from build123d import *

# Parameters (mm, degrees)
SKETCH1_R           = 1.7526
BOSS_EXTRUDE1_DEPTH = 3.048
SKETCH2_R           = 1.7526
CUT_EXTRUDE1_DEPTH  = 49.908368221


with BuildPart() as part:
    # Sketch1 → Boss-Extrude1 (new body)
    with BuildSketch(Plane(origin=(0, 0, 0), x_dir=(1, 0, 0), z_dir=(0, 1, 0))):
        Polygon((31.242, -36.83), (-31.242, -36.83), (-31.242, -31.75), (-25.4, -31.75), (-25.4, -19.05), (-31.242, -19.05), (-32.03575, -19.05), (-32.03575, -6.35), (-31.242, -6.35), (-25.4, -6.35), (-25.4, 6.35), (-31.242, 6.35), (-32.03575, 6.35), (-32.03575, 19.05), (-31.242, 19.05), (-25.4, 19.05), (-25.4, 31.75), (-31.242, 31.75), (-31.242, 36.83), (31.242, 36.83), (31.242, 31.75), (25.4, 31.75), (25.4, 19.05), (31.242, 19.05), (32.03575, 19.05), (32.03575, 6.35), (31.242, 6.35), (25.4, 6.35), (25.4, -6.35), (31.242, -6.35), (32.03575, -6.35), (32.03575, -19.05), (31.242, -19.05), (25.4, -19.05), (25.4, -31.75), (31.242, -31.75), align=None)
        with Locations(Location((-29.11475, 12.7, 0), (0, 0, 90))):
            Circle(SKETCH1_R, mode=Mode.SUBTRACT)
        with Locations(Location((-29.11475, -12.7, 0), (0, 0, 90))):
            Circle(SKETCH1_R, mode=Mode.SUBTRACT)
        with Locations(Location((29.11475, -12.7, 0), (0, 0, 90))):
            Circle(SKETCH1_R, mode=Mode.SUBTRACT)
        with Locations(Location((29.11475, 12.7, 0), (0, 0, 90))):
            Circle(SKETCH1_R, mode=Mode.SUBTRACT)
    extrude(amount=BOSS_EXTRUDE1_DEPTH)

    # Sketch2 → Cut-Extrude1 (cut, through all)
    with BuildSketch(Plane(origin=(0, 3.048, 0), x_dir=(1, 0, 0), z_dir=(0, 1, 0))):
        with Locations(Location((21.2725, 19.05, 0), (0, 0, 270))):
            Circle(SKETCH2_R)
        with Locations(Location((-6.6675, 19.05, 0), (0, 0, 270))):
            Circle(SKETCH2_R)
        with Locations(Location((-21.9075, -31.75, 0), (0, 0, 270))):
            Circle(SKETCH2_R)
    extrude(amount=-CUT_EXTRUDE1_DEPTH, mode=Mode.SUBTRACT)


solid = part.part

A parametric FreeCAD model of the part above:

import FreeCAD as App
import Part
import Sketcher
from FreeCAD import Vector
Q = App.Units.Quantity


def add_polygon(sketch, points):
    """Adds a closed chain of lines whose ends are joined by coincident constraints."""
    first, n = sketch.GeometryCount, len(points)
    for a, b in zip(points, points[1:] + points[:1]):
        sketch.addGeometry(Part.LineSegment(App.Vector(*a, 0), App.Vector(*b, 0)), False)
    for i in range(n):
        sketch.addConstraint(Sketcher.Constraint("Coincident", first + i, 2, first + (i + 1) % n, 1))

doc = App.newDocument("Part")
params = doc.addObject("Spreadsheet::Sheet", "Params")
for row, (alias, value) in enumerate([
    ("sketch1_diameter", "0.138 in"),
    ("sketch1_height", "0.2 in"),
    ("sketch1_height2", "0.5 in"),
    ("sketch1_width", "2.46 in"),
    ("pad1_length", "0.12 in"),
    ("sketch2_diameter", "0.138 in"),
], start=1):
    params.set(f"A{row}", alias)
    params.set(f"B{row}", "=" + value)
    params.setAlias(f"B{row}", alias)

body = doc.addObject("PartDesign::Body", "Body")

# Sketch on XZ plane
sketch1 = body.newObject("Sketcher::SketchObject", "Sketch")
sketch1.AttachmentSupport = (doc.getObject("XZ_Plane"), [""])
sketch1.MapMode = "FlatFace"
add_polygon(sketch1, [(-31.2, 36.8), (31.2, 36.8), (31.2, 31.8), (25.4, 31.8), (25.4, 19.1), (32, 19.1), (32, 6.3), (25.4, 6.3), (25.4, -6.3), (32, -6.3), (32, -19.1), (25.4, -19.1), (25.4, -31.8), (31.2, -31.8), (31.2, -36.8), (-31.2, -36.8), (-31.2, -31.8), (-25.4, -31.8), (-25.4, -19.1), (-32, -19.1), (-32, -6.3), (-25.4, -6.3), (-25.4, 6.3), (-32, 6.3), (-32, 19.1), (-25.4, 19.1), (-25.4, 31.8), (-31.2, 31.8)])  # lines 0-27
sketch1.addGeometry(Part.Circle(Vector(29.1, 12.7, 0), Vector(0, 0, 1), 1.8), False)  # 28
sketch1.addGeometry(Part.Circle(Vector(-29.1, 12.7, 0), Vector(0, 0, 1), 1.8), False)  # 29
sketch1.addGeometry(Part.Circle(Vector(29.1, -12.7, 0), Vector(0, 0, 1), 1.8), False)  # 30
sketch1.addGeometry(Part.Circle(Vector(-29.1, -12.7, 0), Vector(0, 0, 1), 1.8), False)  # 31
sketch1.addConstraint([
    Sketcher.Constraint("Horizontal", 0),
    Sketcher.Constraint("Vertical", 1),
    Sketcher.Constraint("Horizontal", 2),
    Sketcher.Constraint("Vertical", 3),
    Sketcher.Constraint("Horizontal", 4),
    Sketcher.Constraint("Vertical", 5),
    Sketcher.Constraint("Horizontal", 6),
    Sketcher.Constraint("Vertical", 7),
    Sketcher.Constraint("Horizontal", 8),
    Sketcher.Constraint("Vertical", 9),
    Sketcher.Constraint("Horizontal", 10),
    Sketcher.Constraint("Vertical", 11),
    Sketcher.Constraint("Horizontal", 12),
    Sketcher.Constraint("Vertical", 13),
    Sketcher.Constraint("Horizontal", 14),
    Sketcher.Constraint("Vertical", 15),
    Sketcher.Constraint("Horizontal", 16),
    Sketcher.Constraint("Vertical", 17),
    Sketcher.Constraint("Horizontal", 18),
    Sketcher.Constraint("Vertical", 19),
    Sketcher.Constraint("Horizontal", 20),
    Sketcher.Constraint("Vertical", 21),
    Sketcher.Constraint("Horizontal", 22),
    Sketcher.Constraint("Vertical", 23),
    Sketcher.Constraint("Horizontal", 24),
    Sketcher.Constraint("Vertical", 25),
    Sketcher.Constraint("Horizontal", 26),
    Sketcher.Constraint("Vertical", 27),
    Sketcher.Constraint("Equal", 28, 29),
    Sketcher.Constraint("Equal", 29, 30),
    Sketcher.Constraint("Equal", 30, 31),
    Sketcher.Constraint("Symmetric", 29, 3, 30, 3, -1, 1),
    Sketcher.Constraint("Symmetric", 28, 3, 31, 3, -1, 1),
    Sketcher.Constraint("Symmetric", 0, 2, 14, 2, -1, 1),
    Sketcher.Constraint("Symmetric", 2, 2, 16, 2, -1, 1),
    Sketcher.Constraint("Symmetric", 4, 2, 18, 2, -1, 1),
    Sketcher.Constraint("Symmetric", 6, 2, 20, 2, -1, 1),
    Sketcher.Constraint("Symmetric", 8, 2, 22, 2, -1, 1),
    Sketcher.Constraint("Symmetric", 10, 2, 24, 2, -1, 1),
    Sketcher.Constraint("Symmetric", 12, 2, 26, 2, -1, 1),
    Sketcher.Constraint("Symmetric", 28, 3, 29, 3, -2),
    Sketcher.Constraint("Symmetric", 12, 2, 15, 2, -2),
    Sketcher.Constraint("Symmetric", 10, 2, 17, 2, -2),
    Sketcher.Constraint("Symmetric", 8, 2, 19, 2, -2),
    Sketcher.Constraint("Vertical", 3, 2, 6, 2),
    Sketcher.Constraint("Equal", 3, 5),
    Sketcher.Constraint("Equal", 5, 7),
    Sketcher.Constraint("Diameter", 28, Q("0.138 in")),
    Sketcher.Constraint("DistanceY", 1, 2, 1, 1, Q("0.2 in")),
    Sketcher.Constraint("DistanceY", 3, 2, 3, 1, Q("0.5 in")),
    Sketcher.Constraint("DistanceX", -1, 1, 2, 2, Q("1 in")),
    Sketcher.Constraint("DistanceY", 30, 3, 28, 3, Q("1 in")),
    Sketcher.Constraint("DistanceX", 0, 1, 0, 2, Q("2.46 in")),
    Sketcher.Constraint("DistanceX", 28, 3, 4, 2, Q("0.115 in")),
    Sketcher.Constraint("DistanceX", 1, 2, 4, 2, Q("0.03125 in")),
])
sketch1.setExpression("Constraints[75]", "Params.sketch1_diameter")
sketch1.setExpression("Constraints[76]", "Params.sketch1_height")
sketch1.setExpression("Constraints[77]", "Params.sketch1_height2")
sketch1.setExpression("Constraints[80]", "Params.sketch1_width")
pad1 = body.newObject("PartDesign::Pad", "Pad")
pad1.Profile = sketch1
pad1.setExpression("Length", "Params.pad1_length")
pad1.Reversed = True

# Sketch on XZ plane
sketch2 = body.newObject("Sketcher::SketchObject", "Sketch001")
sketch2.AttachmentSupport = (doc.getObject("XZ_Plane"), [""])
sketch2.MapMode = "FlatFace"
sketch2.AttachmentOffset = App.Placement(Vector(0, 0, -0.12 * 25.4), App.Rotation())
sketch2.addGeometry([
    Part.Circle(Vector(21.3, -19.1, 0), Vector(0, 0, 1), 1.8),
    Part.Circle(Vector(-6.7, -19.1, 0), Vector(0, 0, 1), 1.8),
    Part.Circle(Vector(-21.9, 31.8, 0), Vector(0, 0, 1), 1.8),
], False)
sketch2.addConstraint([
    Sketcher.Constraint("Equal", 0, 1),
    Sketcher.Constraint("Equal", 1, 2),
    Sketcher.Constraint("Horizontal", 0, 3, 1, 3),
    Sketcher.Constraint("Diameter", 0, Q("0.138 in")),
    Sketcher.Constraint("DistanceY", 1, 3, 2, 3, Q("2 in")),
    Sketcher.Constraint("DistanceX", 1, 3, 0, 3, Q("1.1 in")),
    Sketcher.Constraint("DistanceX", 2, 3, 1, 3, Q("0.6 in")),
    Sketcher.Constraint("DistanceY", 0, 3, -1, 1, Q("0.75 in")),
    Sketcher.Constraint("DistanceX", -1, 1, 0, 3, Q("0.8375 in")),
])
sketch2.setExpression("Constraints[3]", "Params.sketch2_diameter")
pocket1 = body.newObject("PartDesign::Pocket", "Pocket")
pocket1.Profile = sketch2
pocket1.Type = "ThroughAll"
pocket1.Reversed = True

doc.recompute()
